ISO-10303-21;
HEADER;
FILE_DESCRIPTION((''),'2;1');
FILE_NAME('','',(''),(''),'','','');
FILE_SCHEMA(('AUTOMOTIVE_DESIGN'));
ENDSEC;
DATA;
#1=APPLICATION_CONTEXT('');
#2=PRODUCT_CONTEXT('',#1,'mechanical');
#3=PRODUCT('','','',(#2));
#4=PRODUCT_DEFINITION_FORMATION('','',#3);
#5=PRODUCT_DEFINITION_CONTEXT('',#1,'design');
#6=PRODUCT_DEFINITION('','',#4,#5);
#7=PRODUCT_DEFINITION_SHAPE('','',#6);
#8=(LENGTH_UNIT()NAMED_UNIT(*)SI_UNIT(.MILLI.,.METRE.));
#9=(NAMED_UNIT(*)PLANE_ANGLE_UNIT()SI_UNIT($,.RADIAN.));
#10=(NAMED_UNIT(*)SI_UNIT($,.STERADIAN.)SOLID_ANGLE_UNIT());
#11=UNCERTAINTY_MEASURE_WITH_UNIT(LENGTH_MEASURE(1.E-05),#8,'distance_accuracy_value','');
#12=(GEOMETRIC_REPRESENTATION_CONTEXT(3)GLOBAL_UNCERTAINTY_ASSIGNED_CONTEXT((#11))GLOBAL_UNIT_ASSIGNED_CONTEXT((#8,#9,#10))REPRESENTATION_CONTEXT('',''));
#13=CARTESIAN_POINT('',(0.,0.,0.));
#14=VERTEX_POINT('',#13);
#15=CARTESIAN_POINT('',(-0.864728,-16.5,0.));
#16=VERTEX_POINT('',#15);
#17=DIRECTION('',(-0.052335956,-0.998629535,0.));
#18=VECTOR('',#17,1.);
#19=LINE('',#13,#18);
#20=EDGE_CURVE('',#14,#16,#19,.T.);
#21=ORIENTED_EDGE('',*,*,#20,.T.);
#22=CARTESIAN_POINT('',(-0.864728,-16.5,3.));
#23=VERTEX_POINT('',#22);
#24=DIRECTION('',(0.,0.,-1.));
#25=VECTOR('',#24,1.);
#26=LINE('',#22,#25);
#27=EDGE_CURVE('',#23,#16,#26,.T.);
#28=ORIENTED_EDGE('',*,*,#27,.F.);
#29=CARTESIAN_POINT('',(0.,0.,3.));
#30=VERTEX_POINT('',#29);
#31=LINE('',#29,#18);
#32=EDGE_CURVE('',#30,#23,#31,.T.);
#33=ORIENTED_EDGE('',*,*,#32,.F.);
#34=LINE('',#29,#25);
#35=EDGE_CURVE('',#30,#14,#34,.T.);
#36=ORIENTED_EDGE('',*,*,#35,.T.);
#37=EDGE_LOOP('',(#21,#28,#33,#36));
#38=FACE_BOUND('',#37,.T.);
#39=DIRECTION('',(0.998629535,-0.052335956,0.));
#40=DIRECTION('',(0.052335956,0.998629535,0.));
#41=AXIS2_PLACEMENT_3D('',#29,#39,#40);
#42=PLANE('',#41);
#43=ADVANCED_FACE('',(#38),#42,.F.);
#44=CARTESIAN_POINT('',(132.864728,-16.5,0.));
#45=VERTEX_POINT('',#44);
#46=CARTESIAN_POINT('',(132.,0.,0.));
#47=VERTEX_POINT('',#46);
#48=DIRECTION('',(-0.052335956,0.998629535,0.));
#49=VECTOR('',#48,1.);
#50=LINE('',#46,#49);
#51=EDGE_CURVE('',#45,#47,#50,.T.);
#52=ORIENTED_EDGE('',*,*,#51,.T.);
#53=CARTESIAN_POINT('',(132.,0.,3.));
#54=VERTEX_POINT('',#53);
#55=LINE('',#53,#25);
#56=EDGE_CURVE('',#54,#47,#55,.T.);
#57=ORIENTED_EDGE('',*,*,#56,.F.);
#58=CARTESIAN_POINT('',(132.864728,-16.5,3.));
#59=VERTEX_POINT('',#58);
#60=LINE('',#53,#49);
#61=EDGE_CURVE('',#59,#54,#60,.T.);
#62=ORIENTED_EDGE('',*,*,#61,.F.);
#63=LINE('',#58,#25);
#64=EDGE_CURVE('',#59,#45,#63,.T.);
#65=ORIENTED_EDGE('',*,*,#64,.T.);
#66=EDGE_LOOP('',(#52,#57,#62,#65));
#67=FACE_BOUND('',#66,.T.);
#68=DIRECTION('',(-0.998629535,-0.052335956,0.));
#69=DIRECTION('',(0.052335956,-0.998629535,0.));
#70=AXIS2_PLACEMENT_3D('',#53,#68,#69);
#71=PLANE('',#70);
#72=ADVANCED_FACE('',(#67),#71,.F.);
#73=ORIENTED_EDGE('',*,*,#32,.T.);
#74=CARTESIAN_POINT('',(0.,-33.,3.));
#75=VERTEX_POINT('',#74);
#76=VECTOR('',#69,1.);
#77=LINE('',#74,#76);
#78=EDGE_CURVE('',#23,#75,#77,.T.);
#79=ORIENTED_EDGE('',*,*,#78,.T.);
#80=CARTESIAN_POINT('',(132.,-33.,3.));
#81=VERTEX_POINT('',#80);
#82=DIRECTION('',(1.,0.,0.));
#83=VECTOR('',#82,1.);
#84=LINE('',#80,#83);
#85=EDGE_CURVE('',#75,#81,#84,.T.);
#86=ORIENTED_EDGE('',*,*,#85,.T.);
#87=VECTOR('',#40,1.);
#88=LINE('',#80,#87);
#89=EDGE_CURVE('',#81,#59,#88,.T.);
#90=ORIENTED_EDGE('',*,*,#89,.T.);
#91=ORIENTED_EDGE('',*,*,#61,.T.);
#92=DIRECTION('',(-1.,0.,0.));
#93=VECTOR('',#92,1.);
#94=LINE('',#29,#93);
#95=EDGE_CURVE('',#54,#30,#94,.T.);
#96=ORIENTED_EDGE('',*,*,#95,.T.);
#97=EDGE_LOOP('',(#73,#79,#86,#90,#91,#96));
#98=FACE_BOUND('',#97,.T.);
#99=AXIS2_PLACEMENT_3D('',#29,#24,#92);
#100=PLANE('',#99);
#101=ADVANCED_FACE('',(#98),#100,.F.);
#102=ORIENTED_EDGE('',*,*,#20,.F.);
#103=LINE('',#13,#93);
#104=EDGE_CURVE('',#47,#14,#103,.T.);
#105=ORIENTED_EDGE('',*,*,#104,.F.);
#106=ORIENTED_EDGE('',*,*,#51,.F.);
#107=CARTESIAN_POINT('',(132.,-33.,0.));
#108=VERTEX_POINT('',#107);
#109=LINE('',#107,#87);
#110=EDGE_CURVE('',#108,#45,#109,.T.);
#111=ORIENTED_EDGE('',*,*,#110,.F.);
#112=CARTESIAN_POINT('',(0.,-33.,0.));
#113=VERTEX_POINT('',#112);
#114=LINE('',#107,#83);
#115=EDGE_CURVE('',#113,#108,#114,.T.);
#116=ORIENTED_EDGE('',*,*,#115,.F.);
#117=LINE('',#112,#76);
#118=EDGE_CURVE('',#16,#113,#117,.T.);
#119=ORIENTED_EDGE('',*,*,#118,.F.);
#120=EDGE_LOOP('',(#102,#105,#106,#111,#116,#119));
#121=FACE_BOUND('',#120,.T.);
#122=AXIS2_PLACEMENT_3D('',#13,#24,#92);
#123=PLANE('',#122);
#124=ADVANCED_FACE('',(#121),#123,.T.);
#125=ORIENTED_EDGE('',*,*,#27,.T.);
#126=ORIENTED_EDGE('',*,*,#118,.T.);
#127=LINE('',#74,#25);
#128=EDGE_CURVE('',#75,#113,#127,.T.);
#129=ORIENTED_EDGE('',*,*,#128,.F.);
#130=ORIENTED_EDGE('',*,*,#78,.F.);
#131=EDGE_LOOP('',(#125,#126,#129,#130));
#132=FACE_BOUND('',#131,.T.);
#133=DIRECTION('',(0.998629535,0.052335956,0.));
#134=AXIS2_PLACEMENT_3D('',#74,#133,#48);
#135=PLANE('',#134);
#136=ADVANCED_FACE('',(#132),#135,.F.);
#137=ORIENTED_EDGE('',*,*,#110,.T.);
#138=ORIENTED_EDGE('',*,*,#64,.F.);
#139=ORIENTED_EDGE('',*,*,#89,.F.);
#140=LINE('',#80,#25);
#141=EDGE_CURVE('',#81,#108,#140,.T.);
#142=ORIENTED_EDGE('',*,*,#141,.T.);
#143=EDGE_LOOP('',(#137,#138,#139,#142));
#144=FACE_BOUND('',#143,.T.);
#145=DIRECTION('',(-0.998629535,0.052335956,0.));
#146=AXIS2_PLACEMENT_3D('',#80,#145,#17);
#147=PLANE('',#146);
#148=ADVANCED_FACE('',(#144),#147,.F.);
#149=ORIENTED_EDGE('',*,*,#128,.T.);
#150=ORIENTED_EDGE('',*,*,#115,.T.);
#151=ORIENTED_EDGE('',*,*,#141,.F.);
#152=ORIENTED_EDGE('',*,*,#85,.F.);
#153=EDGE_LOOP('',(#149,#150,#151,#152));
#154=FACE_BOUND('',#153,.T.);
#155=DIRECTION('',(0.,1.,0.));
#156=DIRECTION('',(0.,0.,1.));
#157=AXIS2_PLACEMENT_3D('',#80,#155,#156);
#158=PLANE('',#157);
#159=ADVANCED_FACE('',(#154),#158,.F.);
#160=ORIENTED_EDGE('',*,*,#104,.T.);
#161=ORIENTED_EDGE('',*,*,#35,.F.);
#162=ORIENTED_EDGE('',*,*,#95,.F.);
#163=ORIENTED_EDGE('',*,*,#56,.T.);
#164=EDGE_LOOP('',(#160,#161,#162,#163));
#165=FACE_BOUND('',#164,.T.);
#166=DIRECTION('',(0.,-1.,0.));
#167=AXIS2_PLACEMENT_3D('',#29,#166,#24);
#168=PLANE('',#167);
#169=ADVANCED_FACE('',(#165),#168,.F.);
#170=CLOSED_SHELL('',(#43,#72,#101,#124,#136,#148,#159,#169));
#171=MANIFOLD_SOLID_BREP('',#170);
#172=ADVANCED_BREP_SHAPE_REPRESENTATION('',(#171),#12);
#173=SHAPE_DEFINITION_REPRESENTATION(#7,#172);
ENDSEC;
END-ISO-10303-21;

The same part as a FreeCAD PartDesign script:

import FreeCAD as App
import Part
import Sketcher
Q = App.Units.Quantity


def add_polygon(sketch, points):
    """Adds a closed chain of lines whose ends are joined by coincident constraints."""
    first, n = sketch.GeometryCount, len(points)
    for a, b in zip(points, points[1:] + points[:1]):
        sketch.addGeometry(Part.LineSegment(App.Vector(*a, 0), App.Vector(*b, 0)), False)
    for i in range(n):
        sketch.addConstraint(Sketcher.Constraint("Coincident", first + i, 2, first + (i + 1) % n, 1))

doc = App.newDocument("Part")
params = doc.addObject("Spreadsheet::Sheet", "Params")
for row, (alias, value) in enumerate([
    ("sketch1_width", "132 mm"),
    ("pad1_length", "3 mm"),
], start=1):
    params.set(f"A{row}", alias)
    params.set(f"B{row}", "=" + value)
    params.setAlias(f"B{row}", alias)

body = doc.addObject("PartDesign::Body", "Body")

# Sketch on XY plane
sketch1 = body.newObject("Sketcher::SketchObject", "Sketch")
sketch1.AttachmentSupport = (doc.getObject("XY_Plane"), [""])
sketch1.MapMode = "FlatFace"
add_polygon(sketch1, [(132, 0), (0, 0), (-1, -17), (0, -33), (132, -33), (133, -17)])  # lines 0-5
sketch1.addConstraint([
    Sketcher.Constraint("Horizontal", 0),
    Sketcher.Constraint("Horizontal", 3),
    Sketcher.Constraint("Coincident", 0, 2, -1, 1),
    Sketcher.Constraint("PointOnObject", 2, 2, -2),
    Sketcher.Constraint("Parallel", 1, 4),
    Sketcher.Constraint("Parallel", 2, 5),
    Sketcher.Constraint("Horizontal", 1, 2, 4, 2),
    Sketcher.Constraint("Vertical", 3, 2, 5, 2),
    Sketcher.Constraint("DistanceX", 0, 2, 0, 1, Q("132 mm")),
    Sketcher.Constraint("Angle", 1, Q("-93 deg")),
    Sketcher.Constraint("DistanceY", 2, 2, -1, 1, Q("33 mm")),
])
sketch1.setExpression("Constraints[14]", "Params.sketch1_width")
pad1 = body.newObject("PartDesign::Pad", "Pad")
pad1.Profile = sketch1
pad1.setExpression("Length", "Params.pad1_length")

doc.recompute()
